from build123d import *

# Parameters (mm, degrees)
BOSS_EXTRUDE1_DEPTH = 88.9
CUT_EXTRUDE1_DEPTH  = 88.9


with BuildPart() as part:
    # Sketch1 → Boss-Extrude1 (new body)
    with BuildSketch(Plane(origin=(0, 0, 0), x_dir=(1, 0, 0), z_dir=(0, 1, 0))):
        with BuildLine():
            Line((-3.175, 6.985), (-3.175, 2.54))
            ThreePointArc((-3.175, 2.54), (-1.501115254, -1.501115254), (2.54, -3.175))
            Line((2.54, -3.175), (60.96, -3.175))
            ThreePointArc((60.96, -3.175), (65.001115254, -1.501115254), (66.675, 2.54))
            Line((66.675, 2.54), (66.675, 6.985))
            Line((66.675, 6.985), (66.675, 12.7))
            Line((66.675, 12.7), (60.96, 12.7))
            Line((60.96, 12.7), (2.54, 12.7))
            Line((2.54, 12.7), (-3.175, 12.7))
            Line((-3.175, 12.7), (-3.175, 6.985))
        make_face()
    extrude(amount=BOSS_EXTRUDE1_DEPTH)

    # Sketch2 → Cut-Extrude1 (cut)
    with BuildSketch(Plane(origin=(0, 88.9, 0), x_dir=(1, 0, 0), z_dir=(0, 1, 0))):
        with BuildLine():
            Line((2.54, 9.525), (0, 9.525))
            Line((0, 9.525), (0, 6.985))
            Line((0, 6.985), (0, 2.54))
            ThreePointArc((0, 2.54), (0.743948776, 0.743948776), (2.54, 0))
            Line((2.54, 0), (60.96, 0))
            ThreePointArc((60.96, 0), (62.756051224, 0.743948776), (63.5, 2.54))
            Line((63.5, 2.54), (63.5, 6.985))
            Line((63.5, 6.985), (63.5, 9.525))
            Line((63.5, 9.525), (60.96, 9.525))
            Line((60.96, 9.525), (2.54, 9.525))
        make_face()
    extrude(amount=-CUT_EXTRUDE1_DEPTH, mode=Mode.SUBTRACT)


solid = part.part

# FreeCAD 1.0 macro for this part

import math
import FreeCAD as App
import Part
import Sketcher
from FreeCAD import Vector
Q = App.Units.Quantity

doc = App.newDocument("Part")
body = doc.addObject("PartDesign::Body", "Body")

# Sketch on XZ plane
sketch1 = doc.addObject("Sketcher::SketchObject", "Sketch")
body.addObject(sketch1)
sketch1.AttachmentSupport = (doc.XZ_Plane, [""])
sketch1.MapMode = "FlatFace"
sketch1.addGeometry(Part.ArcOfCircle(Part.Circle(Vector(2.54, -2.54, 0), Vector(0, 0, 1), 5.715), math.radians(90), math.radians(180)), False)
sketch1.addGeometry(Part.LineSegment(Vector(2.54, 3.175, 0), Vector(60.96, 3.175, 0)), False)
sketch1.addGeometry(Part.ArcOfCircle(Part.Circle(Vector(60.96, -2.54, 0), Vector(0, 0, 1), 5.715), math.radians(0), math.radians(90)), False)
sketch1.addGeometry(Part.LineSegment(Vector(66.675, -2.54, 0), Vector(66.675, -12.7, 0)), False)
sketch1.addGeometry(Part.LineSegment(Vector(66.675, -12.7, 0), Vector(-3.175, -12.7, 0)), False)
sketch1.addGeometry(Part.LineSegment(Vector(-3.175, -12.7, 0), Vector(-3.175, -2.54, 0)), False)
sketch1.addConstraint(Sketcher.Constraint("Tangent", 0, 1, 1, 1))
sketch1.addConstraint(Sketcher.Constraint("Tangent", 1, 2, 2, 2))
sketch1.addConstraint(Sketcher.Constraint("Tangent", 2, 1, 3, 1))
sketch1.addConstraint(Sketcher.Constraint("Coincident", 3, 2, 4, 1))
sketch1.addConstraint(Sketcher.Constraint("Coincident", 4, 2, 5, 1))
sketch1.addConstraint(Sketcher.Constraint("Tangent", 5, 2, 0, 2))
sketch1.addConstraint(Sketcher.Constraint("Horizontal", 1))
sketch1.addConstraint(Sketcher.Constraint("Vertical", 3))
sketch1.addConstraint(Sketcher.Constraint("Horizontal", 4))
sketch1.addConstraint(Sketcher.Constraint("Vertical", 5))
sketch1.addConstraint(Sketcher.Constraint("Equal", 0, 2))
sketch1.addConstraint(Sketcher.Constraint("DistanceX", 1, 1, 1, 2, Q("2.3 in")))
sketch1.addConstraint(Sketcher.Constraint("DistanceY", 3, 2, 3, 1, Q("0.4 in")))
sketch1.addConstraint(Sketcher.Constraint("Radius", 0, Q("0.225 in")))
sketch1.addConstraint(Sketcher.Constraint("DistanceX", -1, 1, 0, 3, Q("0.1 in")))
sketch1.addConstraint(Sketcher.Constraint("DistanceY", 0, 3, -1, 1, Q("0.1 in")))
pad1 = doc.addObject("PartDesign::Pad", "Pad")
body.addObject(pad1)
pad1.Profile = sketch1
pad1.Length = Q("3.5 in")
pad1.Reversed = True

# Sketch on XZ plane
sketch2 = doc.addObject("Sketcher::SketchObject", "Sketch001")
body.addObject(sketch2)
sketch2.AttachmentSupport = (doc.XZ_Plane, [""])
sketch2.MapMode = "FlatFace"
sketch2.AttachmentOffset = App.Placement(Vector(0, 0, -3.5 * 25.4), App.Rotation())
sketch2.addGeometry(Part.LineSegment(Vector(0, -9.525, 0), Vector(0, -2.54, 0)), False)
sketch2.addGeometry(Part.ArcOfCircle(Part.Circle(Vector(2.54, -2.54, 0), Vector(0, 0, 1), 2.54), math.radians(90), math.radians(180)), False)
sketch2.addGeometry(Part.LineSegment(Vector(2.54, 0, 0), Vector(60.96, 0, 0)), False)
sketch2.addGeometry(Part.ArcOfCircle(Part.Circle(Vector(60.96, -2.54, 0), Vector(0, 0, 1), 2.54), math.radians(0), math.radians(90)), False)
sketch2.addGeometry(Part.LineSegment(Vector(63.5, -2.54, 0), Vector(63.5, -9.525, 0)), False)
sketch2.addGeometry(Part.LineSegment(Vector(63.5, -9.525, 0), Vector(0, -9.525, 0)), False)
sketch2.addConstraint(Sketcher.Constraint("Tangent", 0, 2, 1, 2))
sketch2.addConstraint(Sketcher.Constraint("Tangent", 1, 1, 2, 1))
sketch2.addConstraint(Sketcher.Constraint("Tangent", 2, 2, 3, 2))
sketch2.addConstraint(Sketcher.Constraint("Tangent", 3, 1, 4, 1))
sketch2.addConstraint(Sketcher.Constraint("Coincident", 4, 2, 5, 1))
sketch2.addConstraint(Sketcher.Constraint("Coincident", 5, 2, 0, 1))
sketch2.addConstraint(Sketcher.Constraint("Vertical", 0))
sketch2.addConstraint(Sketcher.Constraint("Horizontal", 2))
sketch2.addConstraint(Sketcher.Constraint("Vertical", 4))
sketch2.addConstraint(Sketcher.Constraint("Horizontal", 5))
sketch2.addConstraint(Sketcher.Constraint("Equal", 1, 3))
sketch2.addConstraint(Sketcher.Constraint("PointOnObject", 0, 2, -2))
sketch2.addConstraint(Sketcher.Constraint("PointOnObject", 1, 1, -1))
sketch2.addConstraint(Sketcher.Constraint("Radius", 1, Q("0.1 in")))
sketch2.addConstraint(Sketcher.Constraint("DistanceX", 2, 1, 2, 2, Q("2.3 in")))
sketch2.addConstraint(Sketcher.Constraint("DistanceY", 0, 1, 0, 2, Q("0.275 in")))
pocket1 = doc.addObject("PartDesign::Pocket", "Pocket")
body.addObject(pocket1)
pocket1.Profile = sketch2
pocket1.Length = Q("3.5 in")
pocket1.Reversed = True

doc.recompute()
